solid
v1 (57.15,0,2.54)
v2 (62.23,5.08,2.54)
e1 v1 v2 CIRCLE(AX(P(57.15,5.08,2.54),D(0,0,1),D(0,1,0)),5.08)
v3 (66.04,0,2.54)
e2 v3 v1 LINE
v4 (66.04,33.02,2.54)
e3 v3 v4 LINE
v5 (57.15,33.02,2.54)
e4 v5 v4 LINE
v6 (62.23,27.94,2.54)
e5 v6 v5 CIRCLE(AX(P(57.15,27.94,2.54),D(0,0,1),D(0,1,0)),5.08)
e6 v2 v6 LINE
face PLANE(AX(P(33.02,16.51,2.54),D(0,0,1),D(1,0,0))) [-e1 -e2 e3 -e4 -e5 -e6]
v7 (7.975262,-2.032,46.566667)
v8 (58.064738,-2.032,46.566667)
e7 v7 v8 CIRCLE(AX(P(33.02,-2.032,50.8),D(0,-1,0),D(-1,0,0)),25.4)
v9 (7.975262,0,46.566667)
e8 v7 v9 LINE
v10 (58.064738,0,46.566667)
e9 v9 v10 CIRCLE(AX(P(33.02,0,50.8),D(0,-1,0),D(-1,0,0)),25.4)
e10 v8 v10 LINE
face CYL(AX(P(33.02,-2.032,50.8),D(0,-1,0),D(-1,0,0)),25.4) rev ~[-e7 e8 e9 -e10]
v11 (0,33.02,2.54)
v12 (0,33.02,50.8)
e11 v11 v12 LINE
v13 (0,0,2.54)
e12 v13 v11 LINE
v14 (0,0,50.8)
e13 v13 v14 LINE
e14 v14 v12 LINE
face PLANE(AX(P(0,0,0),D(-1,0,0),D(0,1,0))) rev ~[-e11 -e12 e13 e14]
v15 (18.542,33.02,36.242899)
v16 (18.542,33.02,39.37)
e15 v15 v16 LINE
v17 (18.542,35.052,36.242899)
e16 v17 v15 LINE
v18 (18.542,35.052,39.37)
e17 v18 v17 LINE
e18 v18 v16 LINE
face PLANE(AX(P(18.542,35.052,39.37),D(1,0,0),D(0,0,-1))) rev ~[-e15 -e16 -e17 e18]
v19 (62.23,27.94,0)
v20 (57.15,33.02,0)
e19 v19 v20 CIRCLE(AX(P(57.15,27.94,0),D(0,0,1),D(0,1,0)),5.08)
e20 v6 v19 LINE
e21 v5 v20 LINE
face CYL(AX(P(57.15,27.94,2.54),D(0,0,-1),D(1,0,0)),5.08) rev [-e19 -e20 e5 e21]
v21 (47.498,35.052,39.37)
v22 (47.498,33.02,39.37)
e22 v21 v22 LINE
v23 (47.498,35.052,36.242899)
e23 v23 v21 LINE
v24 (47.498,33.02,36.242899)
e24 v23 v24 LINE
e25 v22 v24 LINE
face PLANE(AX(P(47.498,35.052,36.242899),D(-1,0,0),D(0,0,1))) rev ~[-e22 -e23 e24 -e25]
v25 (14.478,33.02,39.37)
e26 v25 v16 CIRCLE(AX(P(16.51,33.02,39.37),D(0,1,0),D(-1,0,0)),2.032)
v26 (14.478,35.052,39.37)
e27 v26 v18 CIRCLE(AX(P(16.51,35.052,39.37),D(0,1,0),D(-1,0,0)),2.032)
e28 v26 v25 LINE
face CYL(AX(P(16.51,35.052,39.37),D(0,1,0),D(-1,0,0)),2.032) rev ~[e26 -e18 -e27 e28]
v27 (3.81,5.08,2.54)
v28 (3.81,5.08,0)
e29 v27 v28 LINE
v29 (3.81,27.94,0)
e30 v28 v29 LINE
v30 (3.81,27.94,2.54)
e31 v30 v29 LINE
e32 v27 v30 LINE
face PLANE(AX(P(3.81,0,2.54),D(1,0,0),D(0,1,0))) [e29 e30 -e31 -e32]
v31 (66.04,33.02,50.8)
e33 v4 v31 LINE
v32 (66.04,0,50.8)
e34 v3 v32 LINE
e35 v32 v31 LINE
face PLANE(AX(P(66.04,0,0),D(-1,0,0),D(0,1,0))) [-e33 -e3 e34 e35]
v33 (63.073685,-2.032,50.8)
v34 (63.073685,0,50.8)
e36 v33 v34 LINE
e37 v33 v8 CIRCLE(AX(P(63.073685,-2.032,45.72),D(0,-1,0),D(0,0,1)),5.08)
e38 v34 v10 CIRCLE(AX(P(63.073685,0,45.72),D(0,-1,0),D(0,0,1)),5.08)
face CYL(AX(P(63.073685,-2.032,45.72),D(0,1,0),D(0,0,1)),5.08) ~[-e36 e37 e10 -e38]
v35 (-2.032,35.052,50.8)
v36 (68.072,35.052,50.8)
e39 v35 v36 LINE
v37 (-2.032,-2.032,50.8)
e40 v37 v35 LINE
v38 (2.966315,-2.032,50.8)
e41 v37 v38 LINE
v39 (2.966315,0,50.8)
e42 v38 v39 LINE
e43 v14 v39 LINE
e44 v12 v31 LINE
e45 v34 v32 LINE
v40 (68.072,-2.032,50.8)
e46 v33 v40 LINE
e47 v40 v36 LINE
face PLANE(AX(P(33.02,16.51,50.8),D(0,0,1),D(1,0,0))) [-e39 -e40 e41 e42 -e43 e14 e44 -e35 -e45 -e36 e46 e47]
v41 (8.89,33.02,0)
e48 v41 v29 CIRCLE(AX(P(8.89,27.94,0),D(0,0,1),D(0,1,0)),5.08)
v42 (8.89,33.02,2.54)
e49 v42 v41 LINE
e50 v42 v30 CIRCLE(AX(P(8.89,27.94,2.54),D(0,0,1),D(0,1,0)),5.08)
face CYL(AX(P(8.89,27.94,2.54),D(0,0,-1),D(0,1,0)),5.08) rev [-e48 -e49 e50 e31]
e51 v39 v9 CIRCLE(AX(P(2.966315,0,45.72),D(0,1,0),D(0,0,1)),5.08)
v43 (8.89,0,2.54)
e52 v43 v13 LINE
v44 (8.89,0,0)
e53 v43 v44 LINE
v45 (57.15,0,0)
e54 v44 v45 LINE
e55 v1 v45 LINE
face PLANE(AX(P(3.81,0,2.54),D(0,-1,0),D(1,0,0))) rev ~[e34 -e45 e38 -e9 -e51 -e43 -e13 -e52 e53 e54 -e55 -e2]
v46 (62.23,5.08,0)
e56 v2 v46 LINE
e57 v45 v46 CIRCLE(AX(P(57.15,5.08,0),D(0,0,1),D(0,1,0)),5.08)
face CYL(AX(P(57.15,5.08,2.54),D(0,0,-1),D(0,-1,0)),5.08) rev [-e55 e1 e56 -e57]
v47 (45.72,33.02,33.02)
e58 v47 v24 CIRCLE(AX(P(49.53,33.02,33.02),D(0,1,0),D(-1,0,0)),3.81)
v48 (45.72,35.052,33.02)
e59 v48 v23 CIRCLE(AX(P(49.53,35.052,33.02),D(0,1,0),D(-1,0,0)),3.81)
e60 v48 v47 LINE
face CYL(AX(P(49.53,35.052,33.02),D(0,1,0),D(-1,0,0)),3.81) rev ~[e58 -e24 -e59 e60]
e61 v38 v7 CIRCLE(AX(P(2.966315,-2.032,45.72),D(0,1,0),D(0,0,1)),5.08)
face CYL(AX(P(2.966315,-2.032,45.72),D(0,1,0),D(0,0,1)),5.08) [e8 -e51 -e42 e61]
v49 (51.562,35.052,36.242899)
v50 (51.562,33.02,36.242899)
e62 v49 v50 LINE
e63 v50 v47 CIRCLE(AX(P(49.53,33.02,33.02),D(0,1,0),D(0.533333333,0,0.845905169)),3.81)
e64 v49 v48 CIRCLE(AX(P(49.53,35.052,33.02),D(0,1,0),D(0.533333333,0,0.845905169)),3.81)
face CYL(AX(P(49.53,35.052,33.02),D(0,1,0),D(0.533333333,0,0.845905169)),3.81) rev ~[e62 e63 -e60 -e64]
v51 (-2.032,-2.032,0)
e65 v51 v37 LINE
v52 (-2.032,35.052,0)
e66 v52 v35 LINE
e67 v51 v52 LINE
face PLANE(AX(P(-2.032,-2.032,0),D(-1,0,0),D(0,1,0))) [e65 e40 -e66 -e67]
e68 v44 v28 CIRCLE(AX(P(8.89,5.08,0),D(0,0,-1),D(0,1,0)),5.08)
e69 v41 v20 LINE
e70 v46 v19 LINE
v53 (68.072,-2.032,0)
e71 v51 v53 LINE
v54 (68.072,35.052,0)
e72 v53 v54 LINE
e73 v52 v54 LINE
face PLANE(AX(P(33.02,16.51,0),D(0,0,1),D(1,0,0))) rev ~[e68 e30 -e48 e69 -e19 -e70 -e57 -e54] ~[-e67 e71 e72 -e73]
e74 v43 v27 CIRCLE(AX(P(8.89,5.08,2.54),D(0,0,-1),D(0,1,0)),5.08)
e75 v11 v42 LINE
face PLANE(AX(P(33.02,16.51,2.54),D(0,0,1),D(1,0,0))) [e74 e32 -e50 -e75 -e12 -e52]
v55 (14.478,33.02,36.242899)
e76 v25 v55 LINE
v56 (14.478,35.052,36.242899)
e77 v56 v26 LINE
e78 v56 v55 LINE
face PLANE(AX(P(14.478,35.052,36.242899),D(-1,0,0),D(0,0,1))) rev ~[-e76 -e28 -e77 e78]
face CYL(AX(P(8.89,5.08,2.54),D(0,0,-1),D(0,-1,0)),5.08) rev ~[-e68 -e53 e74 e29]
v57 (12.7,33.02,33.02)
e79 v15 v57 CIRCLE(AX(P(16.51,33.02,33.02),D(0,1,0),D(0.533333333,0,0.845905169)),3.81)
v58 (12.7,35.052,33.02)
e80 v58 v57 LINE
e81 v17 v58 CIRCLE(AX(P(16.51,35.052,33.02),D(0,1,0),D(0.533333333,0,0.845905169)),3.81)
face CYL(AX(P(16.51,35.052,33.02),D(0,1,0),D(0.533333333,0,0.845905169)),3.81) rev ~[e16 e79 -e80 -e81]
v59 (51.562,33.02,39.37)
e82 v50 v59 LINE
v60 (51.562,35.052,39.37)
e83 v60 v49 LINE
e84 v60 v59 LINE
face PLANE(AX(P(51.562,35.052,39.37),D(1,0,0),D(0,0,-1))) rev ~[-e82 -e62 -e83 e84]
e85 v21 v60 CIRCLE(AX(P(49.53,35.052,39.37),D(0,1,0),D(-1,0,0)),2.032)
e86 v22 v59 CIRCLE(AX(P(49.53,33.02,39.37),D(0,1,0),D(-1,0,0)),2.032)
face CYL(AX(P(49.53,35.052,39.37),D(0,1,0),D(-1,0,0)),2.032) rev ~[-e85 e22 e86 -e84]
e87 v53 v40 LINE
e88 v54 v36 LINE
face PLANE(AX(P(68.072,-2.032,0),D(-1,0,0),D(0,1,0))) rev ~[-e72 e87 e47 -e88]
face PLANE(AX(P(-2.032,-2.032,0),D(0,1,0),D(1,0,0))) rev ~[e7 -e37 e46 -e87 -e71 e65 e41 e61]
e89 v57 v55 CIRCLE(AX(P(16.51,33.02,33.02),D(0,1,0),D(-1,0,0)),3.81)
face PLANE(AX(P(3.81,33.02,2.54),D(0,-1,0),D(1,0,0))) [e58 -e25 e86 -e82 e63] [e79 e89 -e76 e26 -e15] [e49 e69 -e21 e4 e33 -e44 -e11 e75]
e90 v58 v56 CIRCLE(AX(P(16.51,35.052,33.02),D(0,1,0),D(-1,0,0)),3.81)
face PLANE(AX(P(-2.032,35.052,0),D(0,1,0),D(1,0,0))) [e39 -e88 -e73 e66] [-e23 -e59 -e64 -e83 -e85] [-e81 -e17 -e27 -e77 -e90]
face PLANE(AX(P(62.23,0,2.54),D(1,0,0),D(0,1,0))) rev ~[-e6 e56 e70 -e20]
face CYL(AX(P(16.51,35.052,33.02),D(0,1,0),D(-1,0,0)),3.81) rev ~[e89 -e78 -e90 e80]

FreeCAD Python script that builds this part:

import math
import FreeCAD as App
import Part
import Sketcher
Q = App.Units.Quantity


def edges_at(feature, points):
    """Names of the edges that pass closest to the given points."""
    edges = feature.Shape.Edges
    near = lambda p: min(range(len(edges)), key=lambda i: edges[i].distToShape(Part.Vertex(*p))[0])
    return sorted({f"Edge{near(p) + 1}" for p in points})

doc = App.newDocument("Part")
params = doc.addObject("Spreadsheet::Sheet", "Params")
for row, (alias, value) in enumerate([
    ("sketch1_width", "2.6 in"),
    ("sketch1_height", "1.3 in"),
    ("sketch1_width2", "2.76 in"),
    ("sketch1_height2", "1.46 in"),
    ("pad1_length", "2 in"),
    ("sketch2_width", "2.6 in"),
    ("sketch2_height", "1.3 in"),
    ("pad2_length", "0.1 in"),
    ("sketch3_width", "2.3 in"),
    ("sketch3_height", "1.3 in"),
    ("pocket1_length", "1 in"),
    ("sketch4_radius", "1 in"),
    ("pocket2_length", "1 in"),
    ("sketch5_radius", "0.15 in"),
    ("sketch5_radius2", "0.08 in"),
    ("pocket3_length", "1 in"),
    ("fillet_radius", "0.2 in"),
], start=1):
    params.set(f"A{row}", alias)
    params.set(f"B{row}", "=" + value)
    params.setAlias(f"B{row}", alias)

body = doc.addObject("PartDesign::Body", "Body")

# Sketch on XY plane
sketch1 = body.newObject("Sketcher::SketchObject", "Sketch")
sketch1.AttachmentSupport = (doc.getObject("XY_Plane"), [""])
sketch1.MapMode = "FlatFace"
sketch1.addGeometry(Part.LineSegment(App.Vector(-2, 35, 0), App.Vector(-2, -2, 0)), False)
sketch1.addGeometry(Part.LineSegment(App.Vector(-2, -2, 0), App.Vector(68, -2, 0)), False)
sketch1.addGeometry(Part.LineSegment(App.Vector(68, -2, 0), App.Vector(68, 35, 0)), False)
sketch1.addGeometry(Part.LineSegment(App.Vector(68, 35, 0), App.Vector(-2, 35, 0)), False)
sketch1.addGeometry(Part.LineSegment(App.Vector(66, 0, 0), App.Vector(0, 0, 0)), False)
sketch1.addGeometry(Part.LineSegment(App.Vector(0, 0, 0), App.Vector(0, 33, 0)), False)
sketch1.addGeometry(Part.LineSegment(App.Vector(0, 33, 0), App.Vector(66, 33, 0)), False)
sketch1.addGeometry(Part.LineSegment(App.Vector(66, 33, 0), App.Vector(66, 0, 0)), False)
sketch1.addConstraint(Sketcher.Constraint("Coincident", 0, 2, 1, 1))
sketch1.addConstraint(Sketcher.Constraint("Coincident", 1, 2, 2, 1))
sketch1.addConstraint(Sketcher.Constraint("Coincident", 2, 2, 3, 1))
sketch1.addConstraint(Sketcher.Constraint("Coincident", 3, 2, 0, 1))
sketch1.addConstraint(Sketcher.Constraint("Coincident", 4, 2, 5, 1))
sketch1.addConstraint(Sketcher.Constraint("Coincident", 5, 2, 6, 1))
sketch1.addConstraint(Sketcher.Constraint("Coincident", 6, 2, 7, 1))
sketch1.addConstraint(Sketcher.Constraint("Coincident", 7, 2, 4, 1))
sketch1.addConstraint(Sketcher.Constraint("Vertical", 0))
sketch1.addConstraint(Sketcher.Constraint("Horizontal", 1))
sketch1.addConstraint(Sketcher.Constraint("Vertical", 2))
sketch1.addConstraint(Sketcher.Constraint("Horizontal", 3))
sketch1.addConstraint(Sketcher.Constraint("Horizontal", 4))
sketch1.addConstraint(Sketcher.Constraint("Vertical", 5))
sketch1.addConstraint(Sketcher.Constraint("Horizontal", 6))
sketch1.addConstraint(Sketcher.Constraint("Vertical", 7))
sketch1.addConstraint(Sketcher.Constraint("Coincident", 4, 2, -1, 1))
sketch1.addConstraint(Sketcher.Constraint("DistanceX", 4, 2, 4, 1, Q("2.6 in")))
sketch1.addConstraint(Sketcher.Constraint("DistanceY", 5, 1, 5, 2, Q("1.3 in")))
sketch1.addConstraint(Sketcher.Constraint("DistanceX", 1, 1, 1, 2, Q("2.76 in")))
sketch1.addConstraint(Sketcher.Constraint("DistanceY", 0, 2, 0, 1, Q("1.46 in")))
sketch1.addConstraint(Sketcher.Constraint("DistanceX", 0, 2, -1, 1, Q("0.08 in")))
sketch1.addConstraint(Sketcher.Constraint("DistanceY", 0, 2, -1, 1, Q("0.08 in")))
sketch1.setExpression("Constraints[17]", "Params.sketch1_width")
sketch1.setExpression("Constraints[18]", "Params.sketch1_height")
sketch1.setExpression("Constraints[19]", "Params.sketch1_width2")
sketch1.setExpression("Constraints[20]", "Params.sketch1_height2")
pad1 = body.newObject("PartDesign::Pad", "Pad")
pad1.Profile = sketch1
pad1.setExpression("Length", "Params.pad1_length")

# Sketch on XY plane
sketch2 = body.newObject("Sketcher::SketchObject", "Sketch001")
sketch2.AttachmentSupport = (doc.getObject("XY_Plane"), [""])
sketch2.MapMode = "FlatFace"
sketch2.addGeometry(Part.LineSegment(App.Vector(0, 33, 0), App.Vector(0, 0, 0)), False)
sketch2.addGeometry(Part.LineSegment(App.Vector(0, 0, 0), App.Vector(66, 0, 0)), False)
sketch2.addGeometry(Part.LineSegment(App.Vector(66, 0, 0), App.Vector(66, 33, 0)), False)
sketch2.addGeometry(Part.LineSegment(App.Vector(66, 33, 0), App.Vector(0, 33, 0)), False)
sketch2.addConstraint(Sketcher.Constraint("Coincident", 0, 2, 1, 1))
sketch2.addConstraint(Sketcher.Constraint("Coincident", 1, 2, 2, 1))
sketch2.addConstraint(Sketcher.Constraint("Coincident", 2, 2, 3, 1))
sketch2.addConstraint(Sketcher.Constraint("Coincident", 3, 2, 0, 1))
sketch2.addConstraint(Sketcher.Constraint("Vertical", 0))
sketch2.addConstraint(Sketcher.Constraint("Horizontal", 1))
sketch2.addConstraint(Sketcher.Constraint("Vertical", 2))
sketch2.addConstraint(Sketcher.Constraint("Horizontal", 3))
sketch2.addConstraint(Sketcher.Constraint("Coincident", 0, 2, -1, 1))
sketch2.addConstraint(Sketcher.Constraint("DistanceX", 1, 1, 1, 2, Q("2.6 in")))
sketch2.addConstraint(Sketcher.Constraint("DistanceY", 0, 2, 0, 1, Q("1.3 in")))
sketch2.setExpression("Constraints[9]", "Params.sketch2_width")
sketch2.setExpression("Constraints[10]", "Params.sketch2_height")
pad2 = body.newObject("PartDesign::Pad", "Pad001")
pad2.Profile = sketch2
pad2.setExpression("Length", "Params.pad2_length")

# Sketch on XY plane
sketch3 = body.newObject("Sketcher::SketchObject", "Sketch002")
sketch3.AttachmentSupport = (doc.getObject("XY_Plane"), [""])
sketch3.MapMode = "FlatFace"
sketch3.AttachmentOffset = App.Placement(App.Vector(0, 0, 0.1 * 25.4), App.Rotation())
sketch3.addGeometry(Part.LineSegment(App.Vector(4, 33, 0), App.Vector(4, 0, 0)), False)
sketch3.addGeometry(Part.LineSegment(App.Vector(4, 0, 0), App.Vector(62, 0, 0)), False)
sketch3.addGeometry(Part.LineSegment(App.Vector(62, 0, 0), App.Vector(62, 33, 0)), False)
sketch3.addGeometry(Part.LineSegment(App.Vector(62, 33, 0), App.Vector(4, 33, 0)), False)
sketch3.addConstraint(Sketcher.Constraint("Coincident", 0, 2, 1, 1))
sketch3.addConstraint(Sketcher.Constraint("Coincident", 1, 2, 2, 1))
sketch3.addConstraint(Sketcher.Constraint("Coincident", 2, 2, 3, 1))
sketch3.addConstraint(Sketcher.Constraint("Coincident", 3, 2, 0, 1))
sketch3.addConstraint(Sketcher.Constraint("Vertical", 0))
sketch3.addConstraint(Sketcher.Constraint("Horizontal", 1))
sketch3.addConstraint(Sketcher.Constraint("Vertical", 2))
sketch3.addConstraint(Sketcher.Constraint("Horizontal", 3))
sketch3.addConstraint(Sketcher.Constraint("PointOnObject", 0, 2, -1))
sketch3.addConstraint(Sketcher.Constraint("DistanceX", 1, 1, 1, 2, Q("2.3 in")))
sketch3.addConstraint(Sketcher.Constraint("DistanceY", 0, 2, 0, 1, Q("1.3 in")))
sketch3.addConstraint(Sketcher.Constraint("DistanceX", -1, 1, 0, 2, Q("0.15 in")))
sketch3.setExpression("Constraints[9]", "Params.sketch3_width")
sketch3.setExpression("Constraints[10]", "Params.sketch3_height")
pocket1 = body.newObject("PartDesign::Pocket", "Pocket")
pocket1.Profile = sketch3
pocket1.setExpression("Length", "Params.pocket1_length")

# Sketch on XZ plane
sketch4 = body.newObject("Sketcher::SketchObject", "Sketch003")
sketch4.AttachmentSupport = (doc.getObject("XZ_Plane"), [""])
sketch4.MapMode = "FlatFace"
sketch4.AttachmentOffset = App.Placement(App.Vector(0, 0, 0.08 * 25.4), App.Rotation())
sketch4.addGeometry(Part.LineSegment(App.Vector(58, 51, 0), App.Vector(8, 51, 0)), False)
sketch4.addGeometry(Part.ArcOfCircle(Part.Circle(App.Vector(33, 51, 0), App.Vector(0, 0, 1), 25), math.radians(180), math.radians(360)), False)
sketch4.addConstraint(Sketcher.Constraint("Coincident", 0, 1, 1, 2))
sketch4.addConstraint(Sketcher.Constraint("Coincident", 1, 1, 0, 2))
sketch4.addConstraint(Sketcher.Constraint("Horizontal", 0))
sketch4.addConstraint(Sketcher.Constraint("Horizontal", 1, 3, 0, 1))
sketch4.addConstraint(Sketcher.Constraint("Radius", 1, Q("1 in")))
sketch4.addConstraint(Sketcher.Constraint("DistanceY", -1, 1, 1, 3, Q("2 in")))
sketch4.addConstraint(Sketcher.Constraint("DistanceX", -1, 1, 1, 3, Q("1.3 in")))
sketch4.setExpression("Constraints[4]", "Params.sketch4_radius")
pocket2 = body.newObject("PartDesign::Pocket", "Pocket001")
pocket2.Profile = sketch4
pocket2.setExpression("Length", "Params.pocket2_length")

# Sketch on XZ plane
sketch5 = body.newObject("Sketcher::SketchObject", "Sketch004")
sketch5.AttachmentSupport = (doc.getObject("XZ_Plane"), [""])
sketch5.MapMode = "FlatFace"
sketch5.AttachmentOffset = App.Placement(App.Vector(0, 0, -1.38 * 25.4), App.Rotation())
sketch5.addGeometry(Part.ArcOfCircle(Part.Circle(App.Vector(49.5, 33, 0), App.Vector(0, 0, 1), 3.8), math.radians(180), math.radians(418)), False)
sketch5.addGeometry(Part.ArcOfCircle(Part.Circle(App.Vector(49.5, 33, 0), App.Vector(0, 0, 1), 3.8), math.radians(122), math.radians(180)), False)
sketch5.addGeometry(Part.LineSegment(App.Vector(47.5, 36.2, 0), App.Vector(47.5, 39.4, 0)), False)
sketch5.addGeometry(Part.ArcOfCircle(Part.Circle(App.Vector(49.5, 39.4, 0), App.Vector(0, 0, 1), 2), math.radians(0), math.radians(180)), False)
sketch5.addGeometry(Part.LineSegment(App.Vector(51.6, 39.4, 0), App.Vector(51.6, 36.2, 0)), False)
sketch5.addGeometry(Part.LineSegment(App.Vector(14.5, 36.2, 0), App.Vector(14.5, 39.4, 0)), False)
sketch5.addGeometry(Part.ArcOfCircle(Part.Circle(App.Vector(16.5, 39.4, 0), App.Vector(0, 0, 1), 2), math.radians(0), math.radians(180)), False)
sketch5.addGeometry(Part.LineSegment(App.Vector(18.5, 39.4, 0), App.Vector(18.5, 36.2, 0)), False)
sketch5.addGeometry(Part.ArcOfCircle(Part.Circle(App.Vector(16.5, 33, 0), App.Vector(0, 0, 1), 3.8), math.radians(180), math.radians(418)), False)
sketch5.addGeometry(Part.ArcOfCircle(Part.Circle(App.Vector(16.5, 33, 0), App.Vector(0, 0, 1), 3.8), math.radians(122), math.radians(180)), False)
sketch5.addConstraint(Sketcher.Constraint("Tangent", 0, 1, 1, 2))
sketch5.addConstraint(Sketcher.Constraint("Coincident", 1, 1, 2, 1))
sketch5.addConstraint(Sketcher.Constraint("Tangent", 2, 2, 3, 2))
sketch5.addConstraint(Sketcher.Constraint("Tangent", 3, 1, 4, 1))
sketch5.addConstraint(Sketcher.Constraint("Coincident", 4, 2, 0, 2))
sketch5.addConstraint(Sketcher.Constraint("Tangent", 5, 2, 6, 2))
sketch5.addConstraint(Sketcher.Constraint("Tangent", 6, 1, 7, 1))
sketch5.addConstraint(Sketcher.Constraint("Coincident", 7, 2, 8, 2))
sketch5.addConstraint(Sketcher.Constraint("Tangent", 8, 1, 9, 2))
sketch5.addConstraint(Sketcher.Constraint("Coincident", 9, 1, 5, 1))
sketch5.addConstraint(Sketcher.Constraint("Vertical", 2))
sketch5.addConstraint(Sketcher.Constraint("Vertical", 4))
sketch5.addConstraint(Sketcher.Constraint("Vertical", 5))
sketch5.addConstraint(Sketcher.Constraint("Vertical", 7))
sketch5.addConstraint(Sketcher.Constraint("Equal", 0, 1))
sketch5.addConstraint(Sketcher.Constraint("Equal", 3, 6))
sketch5.addConstraint(Sketcher.Constraint("Equal", 1, 8))
sketch5.addConstraint(Sketcher.Constraint("Equal", 8, 9))
sketch5.addConstraint(Sketcher.Constraint("Horizontal", 3, 3, 6, 3))
sketch5.addConstraint(Sketcher.Constraint("Horizontal", 1, 3, 8, 3))
sketch5.addConstraint(Sketcher.Constraint("Horizontal", 9, 3, 0, 1))
sketch5.addConstraint(Sketcher.Constraint("Horizontal", 1, 1, 4, 2))
sketch5.addConstraint(Sketcher.Constraint("Horizontal", 4, 2, 7, 2))
sketch5.addConstraint(Sketcher.Constraint("Horizontal", 0, 1, 8, 1))
sketch5.addConstraint(Sketcher.Constraint("Radius", 0, Q("0.15 in")))
sketch5.addConstraint(Sketcher.Constraint("Radius", 3, Q("0.08 in")))
sketch5.addConstraint(Sketcher.Constraint("DistanceY", -1, 1, 0, 3, Q("1.3 in")))
sketch5.addConstraint(Sketcher.Constraint("DistanceX", -1, 1, 0, 1, Q("1.8 in")))
sketch5.addConstraint(Sketcher.Constraint("DistanceX", -1, 1, 8, 1, Q("0.5 in")))
sketch5.addConstraint(Sketcher.Constraint("DistanceY", -1, 1, 3, 3, Q("1.55 in")))
sketch5.setExpression("Constraints[24]", "Params.sketch5_radius")
sketch5.setExpression("Constraints[25]", "Params.sketch5_radius2")
pocket3 = body.newObject("PartDesign::Pocket", "Pocket002")
pocket3.Profile = sketch5
pocket3.setExpression("Length", "Params.pocket3_length")
pocket3.Reversed = True
doc.recompute()

fillet = body.newObject("PartDesign::Fillet", "Fillet")
fillet.Base = (pocket3, edges_at(pocket3, [
    (58.42, -1.016, 50.8),
    (7.62, -1.016, 50.8),
    (62.23, 0, 1.27),
    (62.23, 33.02, 1.27),
    (3.81, 33.02, 1.27),
    (3.81, 0, 1.27),
]))
fillet.setExpression("Radius", "Params.fillet_radius")

doc.recompute()
